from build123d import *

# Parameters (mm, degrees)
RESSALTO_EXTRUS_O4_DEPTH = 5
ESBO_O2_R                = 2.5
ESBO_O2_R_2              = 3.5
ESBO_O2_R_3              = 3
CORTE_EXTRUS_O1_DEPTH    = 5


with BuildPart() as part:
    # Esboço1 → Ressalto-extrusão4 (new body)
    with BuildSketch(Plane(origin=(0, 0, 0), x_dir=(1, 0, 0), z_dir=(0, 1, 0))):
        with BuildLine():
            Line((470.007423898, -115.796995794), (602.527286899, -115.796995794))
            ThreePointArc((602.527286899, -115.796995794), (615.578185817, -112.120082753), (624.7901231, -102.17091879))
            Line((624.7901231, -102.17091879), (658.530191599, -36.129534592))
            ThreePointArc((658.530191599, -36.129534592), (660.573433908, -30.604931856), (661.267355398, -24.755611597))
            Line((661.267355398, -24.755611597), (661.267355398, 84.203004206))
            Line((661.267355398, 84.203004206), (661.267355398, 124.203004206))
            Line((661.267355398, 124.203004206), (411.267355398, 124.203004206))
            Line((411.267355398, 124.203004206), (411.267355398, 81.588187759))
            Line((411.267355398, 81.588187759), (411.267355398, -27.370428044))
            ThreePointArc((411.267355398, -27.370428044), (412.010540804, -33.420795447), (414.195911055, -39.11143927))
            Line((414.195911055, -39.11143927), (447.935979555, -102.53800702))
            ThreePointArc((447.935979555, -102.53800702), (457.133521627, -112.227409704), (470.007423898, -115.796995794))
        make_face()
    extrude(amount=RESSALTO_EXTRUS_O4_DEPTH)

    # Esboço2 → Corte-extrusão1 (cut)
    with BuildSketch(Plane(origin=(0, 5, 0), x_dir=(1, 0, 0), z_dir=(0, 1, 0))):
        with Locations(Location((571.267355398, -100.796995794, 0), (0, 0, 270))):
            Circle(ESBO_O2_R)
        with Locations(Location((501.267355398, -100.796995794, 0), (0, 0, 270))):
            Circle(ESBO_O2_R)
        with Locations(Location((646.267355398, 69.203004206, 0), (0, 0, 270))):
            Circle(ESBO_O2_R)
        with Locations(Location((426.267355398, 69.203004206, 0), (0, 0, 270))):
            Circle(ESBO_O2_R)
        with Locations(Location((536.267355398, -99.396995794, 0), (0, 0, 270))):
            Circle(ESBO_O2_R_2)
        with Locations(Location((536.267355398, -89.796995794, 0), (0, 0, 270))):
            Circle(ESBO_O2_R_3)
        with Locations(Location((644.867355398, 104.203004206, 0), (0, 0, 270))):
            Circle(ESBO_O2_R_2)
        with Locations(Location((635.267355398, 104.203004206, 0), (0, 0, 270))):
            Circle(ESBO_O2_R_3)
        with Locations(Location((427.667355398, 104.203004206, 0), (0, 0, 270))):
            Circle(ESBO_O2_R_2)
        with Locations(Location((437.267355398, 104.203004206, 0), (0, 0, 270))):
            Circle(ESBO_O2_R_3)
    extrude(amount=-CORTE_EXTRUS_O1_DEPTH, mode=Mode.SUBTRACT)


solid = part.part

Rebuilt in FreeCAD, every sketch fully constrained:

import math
import FreeCAD as App
import Part
import Sketcher
Q = App.Units.Quantity

doc = App.newDocument("Part")
body = doc.addObject("PartDesign::Body", "Body")

sketch1 = body.newObject("Sketcher::SketchObject", "Sketch")
sketch1.AttachmentSupport = (doc.getObject("XZ_Plane"), [""])
sketch1.MapMode = "FlatFace"
sketch1.addGeometry(Part.LineSegment(App.Vector(470, 116, 0), App.Vector(603, 116, 0)), False)
sketch1.addGeometry(Part.ArcOfCircle(Part.Circle(App.Vector(603, 91, 0), App.Vector(0, 0, 1), 25), math.radians(27), math.radians(90)), False)
sketch1.addGeometry(Part.LineSegment(App.Vector(625, 102, 0), App.Vector(659, 36, 0)), False)
sketch1.addGeometry(Part.ArcOfCircle(Part.Circle(App.Vector(636, 25, 0), App.Vector(0, 0, 1), 25), math.radians(0), math.radians(27)), False)
sketch1.addGeometry(Part.LineSegment(App.Vector(661, 25, 0), App.Vector(661, -124, 0)), False)
sketch1.addGeometry(Part.LineSegment(App.Vector(661, -124, 0), App.Vector(411, -124, 0)), False)
sketch1.addGeometry(Part.LineSegment(App.Vector(411, -124, 0), App.Vector(411, 27, 0)), False)
sketch1.addGeometry(Part.ArcOfCircle(Part.Circle(App.Vector(436, 27, 0), App.Vector(0, 0, 1), 25), math.radians(152), math.radians(180)), False)
sketch1.addGeometry(Part.LineSegment(App.Vector(414, 39, 0), App.Vector(448, 103, 0)), False)
sketch1.addGeometry(Part.ArcOfCircle(Part.Circle(App.Vector(470, 91, 0), App.Vector(0, 0, 1), 25), math.radians(90), math.radians(152)), False)
sketch1.addConstraint(Sketcher.Constraint("Tangent", 0, 2, 1, 2))
sketch1.addConstraint(Sketcher.Constraint("Tangent", 1, 1, 2, 1))
sketch1.addConstraint(Sketcher.Constraint("Tangent", 2, 2, 3, 2))
sketch1.addConstraint(Sketcher.Constraint("Tangent", 3, 1, 4, 1))
sketch1.addConstraint(Sketcher.Constraint("Coincident", 4, 2, 5, 1))
sketch1.addConstraint(Sketcher.Constraint("Coincident", 5, 2, 6, 1))
sketch1.addConstraint(Sketcher.Constraint("Tangent", 6, 2, 7, 2))
sketch1.addConstraint(Sketcher.Constraint("Tangent", 7, 1, 8, 1))
sketch1.addConstraint(Sketcher.Constraint("Tangent", 8, 2, 9, 2))
sketch1.addConstraint(Sketcher.Constraint("Tangent", 9, 1, 0, 1))
sketch1.addConstraint(Sketcher.Constraint("Horizontal", 0))
sketch1.addConstraint(Sketcher.Constraint("Vertical", 4))
sketch1.addConstraint(Sketcher.Constraint("Horizontal", 5))
sketch1.addConstraint(Sketcher.Constraint("Vertical", 6))
sketch1.addConstraint(Sketcher.Constraint("Equal", 1, 3))
sketch1.addConstraint(Sketcher.Constraint("Equal", 3, 7))
sketch1.addConstraint(Sketcher.Constraint("Equal", 7, 9))
sketch1.addConstraint(Sketcher.Constraint("Radius", 1, Q("25 mm")))
sketch1.addConstraint(Sketcher.Constraint("DistanceX", 5, 2, 5, 1, Q("250 mm")))
sketch1.addConstraint(Sketcher.Constraint("DistanceY", 4, 2, 1, 3, Q("215 mm")))
sketch1.addConstraint(Sketcher.Constraint("DistanceX", 9, 3, 1, 1, Q("154.782699 mm")))
sketch1.addConstraint(Sketcher.Constraint("Distance", 2, Q("74.161018 mm")))
sketch1.addConstraint(Sketcher.Constraint("Distance", 8, Q("71.842339 mm")))
sketch1.addConstraint(Sketcher.Constraint("DistanceX", 0, 1, 0, 2, Q("132.519863 mm")))
sketch1.addConstraint(Sketcher.Constraint("DistanceY", -1, 1, 3, 3, Q("24.755612 mm")))
sketch1.addConstraint(Sketcher.Constraint("DistanceX", -1, 1, 2, 2, Q("658.530192 mm")))
pad1 = body.newObject("PartDesign::Pad", "Pad")
pad1.Profile = sketch1
pad1.Length = 5
pad1.Reversed = True

sketch2 = body.newObject("Sketcher::SketchObject", "Sketch001")
sketch2.AttachmentSupport = (doc.getObject("XZ_Plane"), [""])
sketch2.MapMode = "FlatFace"
sketch2.AttachmentOffset = App.Placement(App.Vector(0, 0, -5), App.Rotation())
sketch2.addGeometry(Part.Circle(App.Vector(571.3, 100.8, 0), App.Vector(0, 0, 1), 2.5), False)
sketch2.addGeometry(Part.Circle(App.Vector(501.3, 100.8, 0), App.Vector(0, 0, 1), 2.5), False)
sketch2.addGeometry(Part.Circle(App.Vector(646.3, -69.2, 0), App.Vector(0, 0, 1), 2.5), False)
sketch2.addGeometry(Part.Circle(App.Vector(426.3, -69.2, 0), App.Vector(0, 0, 1), 2.5), False)
sketch2.addGeometry(Part.Circle(App.Vector(536.3, 99.4, 0), App.Vector(0, 0, 1), 3.5), False)
sketch2.addGeometry(Part.Circle(App.Vector(536.3, 89.8, 0), App.Vector(0, 0, 1), 3), False)
sketch2.addGeometry(Part.Circle(App.Vector(644.9, -104.2, 0), App.Vector(0, 0, 1), 3.5), False)
sketch2.addGeometry(Part.Circle(App.Vector(635.3, -104.2, 0), App.Vector(0, 0, 1), 3), False)
sketch2.addGeometry(Part.Circle(App.Vector(427.7, -104.2, 0), App.Vector(0, 0, 1), 3.5), False)
sketch2.addGeometry(Part.Circle(App.Vector(437.3, -104.2, 0), App.Vector(0, 0, 1), 3), False)
sketch2.addConstraint(Sketcher.Constraint("Equal", 0, 1))
sketch2.addConstraint(Sketcher.Constraint("Equal", 1, 2))
sketch2.addConstraint(Sketcher.Constraint("Equal", 2, 3))
sketch2.addConstraint(Sketcher.Constraint("Equal", 4, 6))
sketch2.addConstraint(Sketcher.Constraint("Equal", 5, 7))
sketch2.addConstraint(Sketcher.Constraint("Equal", 6, 8))
sketch2.addConstraint(Sketcher.Constraint("Equal", 7, 9))
sketch2.addConstraint(Sketcher.Constraint("Horizontal", 0, 3, 1, 3))
sketch2.addConstraint(Sketcher.Constraint("Horizontal", 2, 3, 3, 3))
sketch2.addConstraint(Sketcher.Constraint("Horizontal", 6, 3, 7, 3))
sketch2.addConstraint(Sketcher.Constraint("Horizontal", 7, 3, 8, 3))
sketch2.addConstraint(Sketcher.Constraint("Horizontal", 8, 3, 9, 3))
sketch2.addConstraint(Sketcher.Constraint("Vertical", 4, 3, 5, 3))
sketch2.addConstraint(Sketcher.Constraint("Diameter", 0, Q("5 mm")))
sketch2.addConstraint(Sketcher.Constraint("Diameter", 4, Q("7 mm")))
sketch2.addConstraint(Sketcher.Constraint("Diameter", 5, Q("6 mm")))
sketch2.addConstraint(Sketcher.Constraint("DistanceX", 1, 3, 0, 3, Q("70 mm")))
sketch2.addConstraint(Sketcher.Constraint("DistanceX", 0, 3, 2, 3, Q("75 mm")))
sketch2.addConstraint(Sketcher.Constraint("DistanceY", 2, 3, 0, 3, Q("170 mm")))
sketch2.addConstraint(Sketcher.Constraint("DistanceX", 3, 3, 1, 3, Q("75 mm")))
sketch2.addConstraint(Sketcher.Constraint("DistanceX", 1, 3, 4, 3, Q("35 mm")))
sketch2.addConstraint(Sketcher.Constraint("DistanceY", 5, 3, 1, 3, Q("11 mm")))
sketch2.addConstraint(Sketcher.Constraint("DistanceY", 6, 3, 2, 3, Q("35 mm")))
sketch2.addConstraint(Sketcher.Constraint("DistanceX", 7, 3, 2, 3, Q("11 mm")))
sketch2.addConstraint(Sketcher.Constraint("DistanceX", 3, 3, 9, 3, Q("11 mm")))
sketch2.addConstraint(Sketcher.Constraint("DistanceY", 4, 3, 1, 3, Q("1.4 mm")))
sketch2.addConstraint(Sketcher.Constraint("DistanceX", 6, 3, 2, 3, Q("1.4 mm")))
sketch2.addConstraint(Sketcher.Constraint("DistanceX", 3, 3, 8, 3, Q("1.4 mm")))
sketch2.addConstraint(Sketcher.Constraint("DistanceX", -1, 1, 0, 3, Q("571.267355 mm")))
sketch2.addConstraint(Sketcher.Constraint("DistanceY", -1, 1, 0, 3, Q("100.796996 mm")))
pocket1 = body.newObject("PartDesign::Pocket", "Pocket")
pocket1.Profile = sketch2
pocket1.Length = 5
pocket1.Reversed = True

doc.recompute()
